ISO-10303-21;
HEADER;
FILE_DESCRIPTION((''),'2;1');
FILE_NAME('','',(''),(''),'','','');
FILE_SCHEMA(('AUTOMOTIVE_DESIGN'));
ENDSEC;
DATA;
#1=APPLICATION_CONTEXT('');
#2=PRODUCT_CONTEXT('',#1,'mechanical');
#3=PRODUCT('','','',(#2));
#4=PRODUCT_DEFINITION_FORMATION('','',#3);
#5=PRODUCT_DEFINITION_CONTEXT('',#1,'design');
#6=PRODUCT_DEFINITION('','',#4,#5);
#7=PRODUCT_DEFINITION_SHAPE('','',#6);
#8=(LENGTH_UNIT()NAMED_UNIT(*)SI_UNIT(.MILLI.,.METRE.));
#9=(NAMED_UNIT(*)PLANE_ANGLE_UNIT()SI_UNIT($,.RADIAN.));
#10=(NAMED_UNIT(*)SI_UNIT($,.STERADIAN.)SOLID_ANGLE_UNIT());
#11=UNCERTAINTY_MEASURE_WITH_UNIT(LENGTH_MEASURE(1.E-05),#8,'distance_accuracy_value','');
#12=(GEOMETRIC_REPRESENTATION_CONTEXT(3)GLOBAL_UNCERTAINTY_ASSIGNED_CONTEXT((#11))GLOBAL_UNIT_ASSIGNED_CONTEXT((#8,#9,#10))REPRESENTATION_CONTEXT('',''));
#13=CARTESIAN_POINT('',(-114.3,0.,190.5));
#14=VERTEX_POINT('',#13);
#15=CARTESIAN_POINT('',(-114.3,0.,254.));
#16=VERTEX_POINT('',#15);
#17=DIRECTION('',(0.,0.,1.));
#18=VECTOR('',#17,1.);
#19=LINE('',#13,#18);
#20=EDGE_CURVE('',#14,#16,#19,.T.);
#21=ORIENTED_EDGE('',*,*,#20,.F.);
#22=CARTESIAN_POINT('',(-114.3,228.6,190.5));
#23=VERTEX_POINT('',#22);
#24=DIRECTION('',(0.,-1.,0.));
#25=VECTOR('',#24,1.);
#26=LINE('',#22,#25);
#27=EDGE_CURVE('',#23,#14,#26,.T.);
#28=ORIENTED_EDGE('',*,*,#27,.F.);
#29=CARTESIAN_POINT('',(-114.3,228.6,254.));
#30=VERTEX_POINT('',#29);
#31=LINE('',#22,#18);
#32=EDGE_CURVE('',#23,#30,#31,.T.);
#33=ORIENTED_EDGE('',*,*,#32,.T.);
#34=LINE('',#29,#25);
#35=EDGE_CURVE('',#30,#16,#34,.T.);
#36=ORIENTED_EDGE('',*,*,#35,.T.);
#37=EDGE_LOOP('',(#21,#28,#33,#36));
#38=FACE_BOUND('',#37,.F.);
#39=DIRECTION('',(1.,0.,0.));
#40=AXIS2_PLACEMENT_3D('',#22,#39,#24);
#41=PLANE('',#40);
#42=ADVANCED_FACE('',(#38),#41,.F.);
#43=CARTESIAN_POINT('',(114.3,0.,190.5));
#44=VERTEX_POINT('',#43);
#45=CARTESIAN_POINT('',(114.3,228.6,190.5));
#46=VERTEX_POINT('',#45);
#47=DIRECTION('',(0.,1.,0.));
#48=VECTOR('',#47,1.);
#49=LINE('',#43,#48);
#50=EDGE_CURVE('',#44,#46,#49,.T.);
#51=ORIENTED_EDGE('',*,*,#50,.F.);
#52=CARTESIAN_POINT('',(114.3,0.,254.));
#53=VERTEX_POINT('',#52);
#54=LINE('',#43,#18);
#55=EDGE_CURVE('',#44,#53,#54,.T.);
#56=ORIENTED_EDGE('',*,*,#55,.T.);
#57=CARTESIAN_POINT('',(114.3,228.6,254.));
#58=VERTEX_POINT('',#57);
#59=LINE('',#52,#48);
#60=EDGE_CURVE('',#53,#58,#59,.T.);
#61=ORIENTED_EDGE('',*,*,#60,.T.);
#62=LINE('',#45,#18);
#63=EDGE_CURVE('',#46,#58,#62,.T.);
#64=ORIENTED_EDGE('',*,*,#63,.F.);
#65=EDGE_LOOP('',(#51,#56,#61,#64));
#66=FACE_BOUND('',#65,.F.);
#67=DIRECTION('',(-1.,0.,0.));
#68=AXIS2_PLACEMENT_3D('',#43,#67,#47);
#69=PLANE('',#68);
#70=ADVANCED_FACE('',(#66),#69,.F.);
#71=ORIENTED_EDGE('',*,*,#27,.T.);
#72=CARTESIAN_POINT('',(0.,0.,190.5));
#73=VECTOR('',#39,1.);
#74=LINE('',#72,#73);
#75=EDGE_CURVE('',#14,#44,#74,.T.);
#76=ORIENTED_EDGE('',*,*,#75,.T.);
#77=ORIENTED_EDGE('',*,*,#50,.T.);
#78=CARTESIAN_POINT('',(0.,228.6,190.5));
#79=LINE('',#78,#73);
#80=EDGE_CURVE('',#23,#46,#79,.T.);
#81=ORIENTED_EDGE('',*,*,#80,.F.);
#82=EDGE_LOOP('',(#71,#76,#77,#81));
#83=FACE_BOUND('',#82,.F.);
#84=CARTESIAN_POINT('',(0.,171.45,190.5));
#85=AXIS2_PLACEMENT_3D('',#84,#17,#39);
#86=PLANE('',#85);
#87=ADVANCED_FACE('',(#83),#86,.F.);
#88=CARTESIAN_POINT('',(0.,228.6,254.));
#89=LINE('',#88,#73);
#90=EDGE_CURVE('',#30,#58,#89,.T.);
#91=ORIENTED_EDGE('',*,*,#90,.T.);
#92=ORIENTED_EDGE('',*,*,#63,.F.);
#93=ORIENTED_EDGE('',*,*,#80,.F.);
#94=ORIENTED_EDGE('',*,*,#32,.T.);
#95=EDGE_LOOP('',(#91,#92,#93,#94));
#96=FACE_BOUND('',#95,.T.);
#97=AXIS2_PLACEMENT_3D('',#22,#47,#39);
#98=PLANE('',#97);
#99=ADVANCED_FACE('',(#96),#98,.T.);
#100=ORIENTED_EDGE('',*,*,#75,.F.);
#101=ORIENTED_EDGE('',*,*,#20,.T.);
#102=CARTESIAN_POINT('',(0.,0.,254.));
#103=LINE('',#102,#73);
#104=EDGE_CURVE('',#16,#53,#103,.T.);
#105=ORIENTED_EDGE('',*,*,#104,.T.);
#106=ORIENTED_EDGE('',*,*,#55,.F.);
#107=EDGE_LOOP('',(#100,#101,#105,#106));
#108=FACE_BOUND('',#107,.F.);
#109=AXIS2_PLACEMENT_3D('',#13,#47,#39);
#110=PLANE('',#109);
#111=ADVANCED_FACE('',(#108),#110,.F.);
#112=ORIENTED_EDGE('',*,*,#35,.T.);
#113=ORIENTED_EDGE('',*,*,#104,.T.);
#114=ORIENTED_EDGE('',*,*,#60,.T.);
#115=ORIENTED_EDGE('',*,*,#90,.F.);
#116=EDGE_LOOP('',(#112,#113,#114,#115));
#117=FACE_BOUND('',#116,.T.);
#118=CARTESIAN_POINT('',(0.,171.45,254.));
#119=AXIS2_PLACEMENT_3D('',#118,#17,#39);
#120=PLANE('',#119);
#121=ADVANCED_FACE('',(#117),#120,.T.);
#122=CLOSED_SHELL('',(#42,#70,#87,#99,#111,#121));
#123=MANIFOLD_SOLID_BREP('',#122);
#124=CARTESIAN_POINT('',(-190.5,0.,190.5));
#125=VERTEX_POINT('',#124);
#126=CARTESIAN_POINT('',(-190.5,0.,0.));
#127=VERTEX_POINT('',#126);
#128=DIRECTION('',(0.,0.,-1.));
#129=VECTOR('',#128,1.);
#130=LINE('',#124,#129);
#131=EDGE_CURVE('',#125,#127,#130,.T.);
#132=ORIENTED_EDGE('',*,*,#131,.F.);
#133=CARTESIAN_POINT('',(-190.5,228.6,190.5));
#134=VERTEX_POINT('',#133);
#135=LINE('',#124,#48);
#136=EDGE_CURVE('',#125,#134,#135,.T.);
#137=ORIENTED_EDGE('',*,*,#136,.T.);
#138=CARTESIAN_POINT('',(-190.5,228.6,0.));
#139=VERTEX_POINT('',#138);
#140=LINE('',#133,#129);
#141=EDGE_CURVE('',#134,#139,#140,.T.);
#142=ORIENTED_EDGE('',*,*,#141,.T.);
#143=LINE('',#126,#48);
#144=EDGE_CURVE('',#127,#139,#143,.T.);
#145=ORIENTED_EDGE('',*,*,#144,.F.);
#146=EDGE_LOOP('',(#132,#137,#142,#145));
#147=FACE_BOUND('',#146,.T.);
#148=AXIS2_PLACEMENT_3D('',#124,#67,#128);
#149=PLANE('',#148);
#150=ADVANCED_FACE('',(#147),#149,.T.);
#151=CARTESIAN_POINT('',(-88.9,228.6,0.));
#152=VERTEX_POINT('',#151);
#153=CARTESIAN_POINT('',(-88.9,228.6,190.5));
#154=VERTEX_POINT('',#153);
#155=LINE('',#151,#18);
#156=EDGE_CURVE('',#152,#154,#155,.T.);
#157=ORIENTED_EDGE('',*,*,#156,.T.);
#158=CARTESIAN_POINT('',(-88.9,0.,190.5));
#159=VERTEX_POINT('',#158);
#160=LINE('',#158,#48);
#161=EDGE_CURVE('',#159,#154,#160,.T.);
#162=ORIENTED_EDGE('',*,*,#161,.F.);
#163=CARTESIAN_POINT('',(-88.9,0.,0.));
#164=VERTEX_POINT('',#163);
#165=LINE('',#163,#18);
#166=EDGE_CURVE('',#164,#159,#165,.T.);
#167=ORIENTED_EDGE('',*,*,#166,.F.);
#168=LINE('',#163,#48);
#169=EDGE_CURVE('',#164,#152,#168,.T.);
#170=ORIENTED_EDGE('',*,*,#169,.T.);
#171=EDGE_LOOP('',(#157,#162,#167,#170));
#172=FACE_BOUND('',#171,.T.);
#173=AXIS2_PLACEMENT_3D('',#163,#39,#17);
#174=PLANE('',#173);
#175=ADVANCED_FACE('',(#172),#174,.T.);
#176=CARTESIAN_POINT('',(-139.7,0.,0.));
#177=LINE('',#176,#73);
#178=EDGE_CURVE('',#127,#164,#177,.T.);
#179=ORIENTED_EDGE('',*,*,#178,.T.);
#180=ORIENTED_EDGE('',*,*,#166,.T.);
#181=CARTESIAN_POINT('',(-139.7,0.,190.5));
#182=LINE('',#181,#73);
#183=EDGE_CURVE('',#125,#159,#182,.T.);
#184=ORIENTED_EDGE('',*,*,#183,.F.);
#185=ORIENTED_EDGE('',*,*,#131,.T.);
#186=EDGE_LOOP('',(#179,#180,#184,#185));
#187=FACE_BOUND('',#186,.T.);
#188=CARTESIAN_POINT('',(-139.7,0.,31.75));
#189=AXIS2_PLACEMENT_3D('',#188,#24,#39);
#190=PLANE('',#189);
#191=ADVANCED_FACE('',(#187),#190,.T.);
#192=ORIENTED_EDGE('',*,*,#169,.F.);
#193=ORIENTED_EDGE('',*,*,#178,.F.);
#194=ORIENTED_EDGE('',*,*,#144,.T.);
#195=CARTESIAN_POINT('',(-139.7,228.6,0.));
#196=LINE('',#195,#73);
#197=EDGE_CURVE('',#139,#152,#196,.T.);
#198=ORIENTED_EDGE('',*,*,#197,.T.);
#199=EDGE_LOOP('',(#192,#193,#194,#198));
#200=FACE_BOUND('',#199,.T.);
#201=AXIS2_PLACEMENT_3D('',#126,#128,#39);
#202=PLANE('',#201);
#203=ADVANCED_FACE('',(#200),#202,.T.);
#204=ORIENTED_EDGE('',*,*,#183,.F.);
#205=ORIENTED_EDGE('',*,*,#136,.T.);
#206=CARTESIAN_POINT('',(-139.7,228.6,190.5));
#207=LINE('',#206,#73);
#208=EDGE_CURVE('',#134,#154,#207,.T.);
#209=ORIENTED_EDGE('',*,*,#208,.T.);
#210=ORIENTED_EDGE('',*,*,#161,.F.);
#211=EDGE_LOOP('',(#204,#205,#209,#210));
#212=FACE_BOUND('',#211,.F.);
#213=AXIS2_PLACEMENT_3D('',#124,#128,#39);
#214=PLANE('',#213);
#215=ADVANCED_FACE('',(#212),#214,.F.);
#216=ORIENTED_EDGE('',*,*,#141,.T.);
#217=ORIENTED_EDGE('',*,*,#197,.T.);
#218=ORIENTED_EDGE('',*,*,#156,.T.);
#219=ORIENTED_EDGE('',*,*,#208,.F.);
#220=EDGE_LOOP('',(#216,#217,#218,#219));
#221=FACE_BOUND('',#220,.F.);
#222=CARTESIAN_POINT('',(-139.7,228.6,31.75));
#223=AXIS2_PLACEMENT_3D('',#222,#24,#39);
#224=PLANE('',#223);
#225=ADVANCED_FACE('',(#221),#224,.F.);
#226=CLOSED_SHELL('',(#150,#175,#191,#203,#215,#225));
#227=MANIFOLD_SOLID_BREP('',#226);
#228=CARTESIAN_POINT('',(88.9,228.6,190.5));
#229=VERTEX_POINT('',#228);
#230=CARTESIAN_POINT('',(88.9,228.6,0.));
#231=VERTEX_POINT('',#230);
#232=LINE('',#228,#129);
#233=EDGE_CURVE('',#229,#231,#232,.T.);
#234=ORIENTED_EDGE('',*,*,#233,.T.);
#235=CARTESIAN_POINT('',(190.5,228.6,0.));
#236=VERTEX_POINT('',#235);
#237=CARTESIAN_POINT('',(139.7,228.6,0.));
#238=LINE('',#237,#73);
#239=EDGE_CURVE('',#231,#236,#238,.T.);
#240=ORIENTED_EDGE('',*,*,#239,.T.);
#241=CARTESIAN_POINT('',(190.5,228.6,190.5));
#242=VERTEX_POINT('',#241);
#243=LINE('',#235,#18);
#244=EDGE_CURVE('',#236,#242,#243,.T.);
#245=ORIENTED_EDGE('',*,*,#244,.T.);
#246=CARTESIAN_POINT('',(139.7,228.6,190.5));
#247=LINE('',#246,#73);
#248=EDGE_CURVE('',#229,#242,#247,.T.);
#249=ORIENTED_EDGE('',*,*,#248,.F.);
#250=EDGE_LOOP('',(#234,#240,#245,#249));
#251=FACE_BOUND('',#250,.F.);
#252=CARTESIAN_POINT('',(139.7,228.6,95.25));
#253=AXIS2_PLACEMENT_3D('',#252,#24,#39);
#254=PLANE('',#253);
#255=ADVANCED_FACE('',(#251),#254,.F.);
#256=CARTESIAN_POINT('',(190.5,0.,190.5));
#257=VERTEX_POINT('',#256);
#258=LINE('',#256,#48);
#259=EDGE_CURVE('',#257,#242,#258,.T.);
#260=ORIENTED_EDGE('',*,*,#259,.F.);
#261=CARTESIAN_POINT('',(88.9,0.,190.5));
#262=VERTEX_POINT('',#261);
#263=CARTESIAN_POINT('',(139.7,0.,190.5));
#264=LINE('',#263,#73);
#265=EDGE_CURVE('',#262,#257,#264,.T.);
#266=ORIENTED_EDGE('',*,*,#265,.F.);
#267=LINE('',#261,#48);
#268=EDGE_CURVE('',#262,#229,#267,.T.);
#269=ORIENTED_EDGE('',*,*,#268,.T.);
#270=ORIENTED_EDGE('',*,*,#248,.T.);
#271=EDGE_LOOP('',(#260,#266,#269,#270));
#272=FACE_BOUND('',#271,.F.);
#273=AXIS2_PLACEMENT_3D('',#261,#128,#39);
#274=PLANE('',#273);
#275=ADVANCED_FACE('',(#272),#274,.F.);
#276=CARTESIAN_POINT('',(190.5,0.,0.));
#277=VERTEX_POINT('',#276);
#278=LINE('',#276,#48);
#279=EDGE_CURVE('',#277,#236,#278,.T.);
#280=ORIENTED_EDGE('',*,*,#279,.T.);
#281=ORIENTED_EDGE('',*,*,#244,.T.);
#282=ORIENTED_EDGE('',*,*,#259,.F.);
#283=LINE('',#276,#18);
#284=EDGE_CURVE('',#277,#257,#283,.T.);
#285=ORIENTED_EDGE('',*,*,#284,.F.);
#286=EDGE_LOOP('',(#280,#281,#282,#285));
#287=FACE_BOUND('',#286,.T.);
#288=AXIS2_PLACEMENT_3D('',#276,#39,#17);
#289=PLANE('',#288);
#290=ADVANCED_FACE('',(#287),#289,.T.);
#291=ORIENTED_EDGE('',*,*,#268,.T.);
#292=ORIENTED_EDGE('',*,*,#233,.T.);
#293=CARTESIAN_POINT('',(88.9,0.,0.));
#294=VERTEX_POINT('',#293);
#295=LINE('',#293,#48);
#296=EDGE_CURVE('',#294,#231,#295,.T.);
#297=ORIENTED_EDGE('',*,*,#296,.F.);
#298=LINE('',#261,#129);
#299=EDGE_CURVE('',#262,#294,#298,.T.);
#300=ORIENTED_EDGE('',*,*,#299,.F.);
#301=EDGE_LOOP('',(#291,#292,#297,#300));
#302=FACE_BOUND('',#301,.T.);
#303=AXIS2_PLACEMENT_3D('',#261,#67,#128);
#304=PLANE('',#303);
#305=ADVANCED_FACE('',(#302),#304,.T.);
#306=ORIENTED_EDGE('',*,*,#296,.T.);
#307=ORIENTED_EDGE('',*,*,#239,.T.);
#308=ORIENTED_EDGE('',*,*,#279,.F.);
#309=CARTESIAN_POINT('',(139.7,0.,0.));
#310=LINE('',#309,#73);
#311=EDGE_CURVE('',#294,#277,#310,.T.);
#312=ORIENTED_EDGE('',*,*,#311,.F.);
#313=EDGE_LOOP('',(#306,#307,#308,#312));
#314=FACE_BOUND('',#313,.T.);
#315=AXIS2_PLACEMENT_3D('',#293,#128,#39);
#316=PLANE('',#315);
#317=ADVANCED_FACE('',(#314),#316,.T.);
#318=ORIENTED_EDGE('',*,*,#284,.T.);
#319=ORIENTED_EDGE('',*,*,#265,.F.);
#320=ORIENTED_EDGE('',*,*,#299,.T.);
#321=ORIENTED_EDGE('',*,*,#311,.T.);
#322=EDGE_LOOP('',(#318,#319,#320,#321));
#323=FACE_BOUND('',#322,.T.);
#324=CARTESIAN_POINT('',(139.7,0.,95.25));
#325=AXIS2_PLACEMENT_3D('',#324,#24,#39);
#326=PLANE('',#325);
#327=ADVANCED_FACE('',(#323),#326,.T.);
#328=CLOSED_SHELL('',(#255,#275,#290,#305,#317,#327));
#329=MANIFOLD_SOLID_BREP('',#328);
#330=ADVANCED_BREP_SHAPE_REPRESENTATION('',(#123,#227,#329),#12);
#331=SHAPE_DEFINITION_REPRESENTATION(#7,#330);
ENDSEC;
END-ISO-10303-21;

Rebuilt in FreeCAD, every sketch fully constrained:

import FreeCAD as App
import Part
import Sketcher

V = App.Vector
Q = App.Units.Quantity

doc = App.newDocument("Part")
body = doc.addObject("PartDesign::Body", "Body")
body.AllowCompound = True

sketch1 = doc.addObject("Sketcher::SketchObject", "Sketch")
body.addObject(sketch1)
sketch1.AttachmentSupport = (doc.XZ_Plane, [""])
sketch1.MapMode = "FlatFace"
sketch1.addGeometry([
    Part.LineSegment(V(-190, 0, 0), V(-89, 0, 0)),
    Part.LineSegment(V(-89, 0, 0), V(-89, 190, 0)),
    Part.LineSegment(V(-89, 190, 0), V(-190, 190, 0)),
    Part.LineSegment(V(-190, 190, 0), V(-190, 0, 0)),
    Part.LineSegment(V(190, 190, 0), V(89, 190, 0)),
    Part.LineSegment(V(89, 190, 0), V(89, 0, 0)),
    Part.LineSegment(V(89, 0, 0), V(190, 0, 0)),
    Part.LineSegment(V(190, 0, 0), V(190, 190, 0)),
], False)
sketch1.addConstraint([
    Sketcher.Constraint("Coincident", 0, 2, 1, 1),
    Sketcher.Constraint("Coincident", 1, 2, 2, 1),
    Sketcher.Constraint("Coincident", 2, 2, 3, 1),
    Sketcher.Constraint("Coincident", 3, 2, 0, 1),
    Sketcher.Constraint("Coincident", 4, 2, 5, 1),
    Sketcher.Constraint("Coincident", 5, 2, 6, 1),
    Sketcher.Constraint("Coincident", 6, 2, 7, 1),
    Sketcher.Constraint("Coincident", 7, 2, 4, 1),
    Sketcher.Constraint("Horizontal", 0),
    Sketcher.Constraint("Vertical", 1),
    Sketcher.Constraint("Horizontal", 2),
    Sketcher.Constraint("Vertical", 3),
    Sketcher.Constraint("Horizontal", 4),
    Sketcher.Constraint("Vertical", 5),
    Sketcher.Constraint("Horizontal", 6),
    Sketcher.Constraint("Vertical", 7),
    Sketcher.Constraint("Symmetric", 0, 2, 5, 2, -1, 1),
    Sketcher.Constraint("Symmetric", 3, 2, 6, 2, -2),
    Sketcher.Constraint("Horizontal", 2, 2, 4, 2),
    Sketcher.Constraint("DistanceX", 0, 1, 0, 2, Q("4 in")),
    Sketcher.Constraint("DistanceY", 1, 1, 1, 2, Q("7.5 in")),
    Sketcher.Constraint("DistanceX", 1, 2, 4, 2, Q("7 in")),
])
pad1 = doc.addObject("PartDesign::Pad", "Pad")
body.addObject(pad1)
pad1.Profile = sketch1
pad1.Length = Q("9 in")
pad1.Reversed = True
body2 = doc.addObject("PartDesign::Body", "Body001")

sketch2 = doc.addObject("Sketcher::SketchObject", "Sketch001")
body2.addObject(sketch2)
sketch2.AttachmentSupport = (doc.getObject("XY_Plane001"), [""])
sketch2.MapMode = "FlatFace"
sketch2.AttachmentOffset = App.Placement(V(0, 0, 7.5 * 25.4), App.Rotation())
sketch2.addGeometry([
    Part.LineSegment(V(-114, 229, 0), V(-114, 0, 0)),
    Part.LineSegment(V(-114, 0, 0), V(114, 0, 0)),
    Part.LineSegment(V(114, 0, 0), V(114, 229, 0)),
    Part.LineSegment(V(114, 229, 0), V(-114, 229, 0)),
], False)
sketch2.addConstraint([
    Sketcher.Constraint("Coincident", 0, 2, 1, 1),
    Sketcher.Constraint("Coincident", 1, 2, 2, 1),
    Sketcher.Constraint("Coincident", 2, 2, 3, 1),
    Sketcher.Constraint("Coincident", 3, 2, 0, 1),
    Sketcher.Constraint("Vertical", 0),
    Sketcher.Constraint("Horizontal", 1),
    Sketcher.Constraint("Vertical", 2),
    Sketcher.Constraint("Horizontal", 3),
    Sketcher.Constraint("Symmetric", 0, 2, 1, 2, -1, 1),
    Sketcher.Constraint("Equal", 3, 0),
    Sketcher.Constraint("DistanceX", 1, 1, 1, 2, Q("9 in")),
])
pad2 = doc.addObject("PartDesign::Pad", "Pad001")
body2.addObject(pad2)
pad2.Profile = sketch2
pad2.Length = Q("2.5 in")

doc.recompute()
